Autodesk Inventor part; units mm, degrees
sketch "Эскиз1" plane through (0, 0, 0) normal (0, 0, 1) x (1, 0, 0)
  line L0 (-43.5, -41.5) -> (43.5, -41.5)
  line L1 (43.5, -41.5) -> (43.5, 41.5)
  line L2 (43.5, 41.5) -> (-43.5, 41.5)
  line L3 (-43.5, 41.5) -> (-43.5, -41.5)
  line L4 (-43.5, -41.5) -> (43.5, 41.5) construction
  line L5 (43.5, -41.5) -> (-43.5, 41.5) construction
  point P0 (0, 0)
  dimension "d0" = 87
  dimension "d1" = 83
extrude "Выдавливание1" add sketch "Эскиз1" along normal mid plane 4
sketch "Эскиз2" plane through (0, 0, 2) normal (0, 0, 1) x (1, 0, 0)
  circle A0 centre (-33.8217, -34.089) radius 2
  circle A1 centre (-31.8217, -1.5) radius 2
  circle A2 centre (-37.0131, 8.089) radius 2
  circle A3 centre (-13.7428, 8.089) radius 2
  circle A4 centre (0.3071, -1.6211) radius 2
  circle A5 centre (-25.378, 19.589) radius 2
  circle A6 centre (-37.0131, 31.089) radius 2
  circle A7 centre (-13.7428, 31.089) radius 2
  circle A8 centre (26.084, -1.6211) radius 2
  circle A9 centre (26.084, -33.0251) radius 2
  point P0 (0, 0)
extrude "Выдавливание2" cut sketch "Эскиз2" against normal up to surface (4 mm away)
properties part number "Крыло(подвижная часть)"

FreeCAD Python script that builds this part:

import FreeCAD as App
import Part
import Sketcher

doc = App.newDocument("Part")
body = doc.addObject("PartDesign::Body", "Body")

sketch1 = doc.addObject("Sketcher::SketchObject", "Sketch")
body.addObject(sketch1)
sketch1.AttachmentSupport = (doc.XY_Plane, [""])
sketch1.MapMode = "FlatFace"
sketch1.addGeometry(Part.LineSegment(App.Vector(-44, 42, 0), App.Vector(-44, -42, 0)), False)
sketch1.addGeometry(Part.LineSegment(App.Vector(-44, -42, 0), App.Vector(44, -42, 0)), False)
sketch1.addGeometry(Part.LineSegment(App.Vector(44, -42, 0), App.Vector(44, 42, 0)), False)
sketch1.addGeometry(Part.LineSegment(App.Vector(44, 42, 0), App.Vector(-44, 42, 0)), False)
sketch1.addConstraint(Sketcher.Constraint("Coincident", 0, 2, 1, 1))
sketch1.addConstraint(Sketcher.Constraint("Coincident", 1, 2, 2, 1))
sketch1.addConstraint(Sketcher.Constraint("Coincident", 2, 2, 3, 1))
sketch1.addConstraint(Sketcher.Constraint("Coincident", 3, 2, 0, 1))
sketch1.addConstraint(Sketcher.Constraint("Vertical", 0))
sketch1.addConstraint(Sketcher.Constraint("Horizontal", 1))
sketch1.addConstraint(Sketcher.Constraint("Vertical", 2))
sketch1.addConstraint(Sketcher.Constraint("Horizontal", 3))
sketch1.addConstraint(Sketcher.Constraint("Symmetric", 0, 2, 2, 2, -1, 1))
sketch1.addConstraint(Sketcher.Constraint("DistanceX", 1, 1, 1, 2, 87.0))
sketch1.addConstraint(Sketcher.Constraint("DistanceY", 0, 2, 0, 1, 83.0))
pad1 = doc.addObject("PartDesign::Pad", "Pad")
body.addObject(pad1)
pad1.Profile = sketch1
pad1.Length = 4
pad1.Midplane = True

sketch2 = doc.addObject("Sketcher::SketchObject", "Sketch001")
body.addObject(sketch2)
sketch2.AttachmentSupport = (doc.XY_Plane, [""])
sketch2.MapMode = "FlatFace"
sketch2.AttachmentOffset = App.Placement(App.Vector(0, 0, 2), App.Rotation())
sketch2.addGeometry(Part.Circle(App.Vector(-33.8, -34.1, 0), App.Vector(0, 0, 1), 2), False)
sketch2.addGeometry(Part.Circle(App.Vector(-31.8, -1.5, 0), App.Vector(0, 0, 1), 2), False)
sketch2.addGeometry(Part.Circle(App.Vector(-37, 8.1, 0), App.Vector(0, 0, 1), 2), False)
sketch2.addGeometry(Part.Circle(App.Vector(-13.7, 8.1, 0), App.Vector(0, 0, 1), 2), False)
sketch2.addGeometry(Part.Circle(App.Vector(0.3, -1.6, 0), App.Vector(0, 0, 1), 2), False)
sketch2.addGeometry(Part.Circle(App.Vector(-25.4, 19.6, 0), App.Vector(0, 0, 1), 2), False)
sketch2.addGeometry(Part.Circle(App.Vector(-37, 31.1, 0), App.Vector(0, 0, 1), 2), False)
sketch2.addGeometry(Part.Circle(App.Vector(-13.7, 31.1, 0), App.Vector(0, 0, 1), 2), False)
sketch2.addGeometry(Part.Circle(App.Vector(26.1, -1.6, 0), App.Vector(0, 0, 1), 2), False)
sketch2.addGeometry(Part.Circle(App.Vector(26.1, -33, 0), App.Vector(0, 0, 1), 2), False)
sketch2.addConstraint(Sketcher.Constraint("Equal", 0, 1))
sketch2.addConstraint(Sketcher.Constraint("Equal", 1, 2))
sketch2.addConstraint(Sketcher.Constraint("Equal", 2, 3))
sketch2.addConstraint(Sketcher.Constraint("Equal", 3, 4))
sketch2.addConstraint(Sketcher.Constraint("Equal", 4, 5))
sketch2.addConstraint(Sketcher.Constraint("Equal", 5, 6))
sketch2.addConstraint(Sketcher.Constraint("Equal", 6, 7))
sketch2.addConstraint(Sketcher.Constraint("Equal", 7, 8))
sketch2.addConstraint(Sketcher.Constraint("Equal", 8, 9))
sketch2.addConstraint(Sketcher.Constraint("Horizontal", 2, 3, 3, 3))
sketch2.addConstraint(Sketcher.Constraint("Horizontal", 6, 3, 7, 3))
sketch2.addConstraint(Sketcher.Constraint("Horizontal", 4, 3, 8, 3))
sketch2.addConstraint(Sketcher.Constraint("Vertical", 2, 3, 6, 3))
sketch2.addConstraint(Sketcher.Constraint("Vertical", 3, 3, 7, 3))
sketch2.addConstraint(Sketcher.Constraint("Vertical", 8, 3, 9, 3))
sketch2.addConstraint(Sketcher.Constraint("Diameter", 0, 4.0))
sketch2.addConstraint(Sketcher.Constraint("DistanceX", 0, 3, 1, 3, 2.0))
sketch2.addConstraint(Sketcher.Constraint("DistanceY", 2, 3, 6, 3, 23.0))
sketch2.addConstraint(Sketcher.Constraint("DistanceY", 1, 3, -1, 1, 1.5))
sketch2.addConstraint(Sketcher.Constraint("DistanceY", 2, 3, 5, 3, 11.5))
sketch2.addConstraint(Sketcher.Constraint("DistanceX", 3, 3, 4, 3, 14.05))
sketch2.addConstraint(Sketcher.Constraint("DistanceY", 4, 3, 3, 3, 9.71))
sketch2.addConstraint(Sketcher.Constraint("DistanceY", 0, 3, -1, 1, 34.089))
sketch2.addConstraint(Sketcher.Constraint("DistanceX", 2, 3, -1, 1, 37.013))
sketch2.addConstraint(Sketcher.Constraint("DistanceY", -1, 1, 2, 3, 8.089))
sketch2.addConstraint(Sketcher.Constraint("DistanceX", -1, 1, 4, 3, 0.307))
sketch2.addConstraint(Sketcher.Constraint("DistanceX", 5, 3, -1, 1, 25.378))
sketch2.addConstraint(Sketcher.Constraint("DistanceX", -1, 1, 8, 3, 26.084))
sketch2.addConstraint(Sketcher.Constraint("DistanceY", 9, 3, -1, 1, 33.025))
sketch2.addConstraint(Sketcher.Constraint("DistanceX", 1, 3, 3, 3, 18.079))
pocket1 = doc.addObject("PartDesign::Pocket", "Pocket")
body.addObject(pocket1)
pocket1.Profile = sketch2
pocket1.Length = 4

doc.recompute()
